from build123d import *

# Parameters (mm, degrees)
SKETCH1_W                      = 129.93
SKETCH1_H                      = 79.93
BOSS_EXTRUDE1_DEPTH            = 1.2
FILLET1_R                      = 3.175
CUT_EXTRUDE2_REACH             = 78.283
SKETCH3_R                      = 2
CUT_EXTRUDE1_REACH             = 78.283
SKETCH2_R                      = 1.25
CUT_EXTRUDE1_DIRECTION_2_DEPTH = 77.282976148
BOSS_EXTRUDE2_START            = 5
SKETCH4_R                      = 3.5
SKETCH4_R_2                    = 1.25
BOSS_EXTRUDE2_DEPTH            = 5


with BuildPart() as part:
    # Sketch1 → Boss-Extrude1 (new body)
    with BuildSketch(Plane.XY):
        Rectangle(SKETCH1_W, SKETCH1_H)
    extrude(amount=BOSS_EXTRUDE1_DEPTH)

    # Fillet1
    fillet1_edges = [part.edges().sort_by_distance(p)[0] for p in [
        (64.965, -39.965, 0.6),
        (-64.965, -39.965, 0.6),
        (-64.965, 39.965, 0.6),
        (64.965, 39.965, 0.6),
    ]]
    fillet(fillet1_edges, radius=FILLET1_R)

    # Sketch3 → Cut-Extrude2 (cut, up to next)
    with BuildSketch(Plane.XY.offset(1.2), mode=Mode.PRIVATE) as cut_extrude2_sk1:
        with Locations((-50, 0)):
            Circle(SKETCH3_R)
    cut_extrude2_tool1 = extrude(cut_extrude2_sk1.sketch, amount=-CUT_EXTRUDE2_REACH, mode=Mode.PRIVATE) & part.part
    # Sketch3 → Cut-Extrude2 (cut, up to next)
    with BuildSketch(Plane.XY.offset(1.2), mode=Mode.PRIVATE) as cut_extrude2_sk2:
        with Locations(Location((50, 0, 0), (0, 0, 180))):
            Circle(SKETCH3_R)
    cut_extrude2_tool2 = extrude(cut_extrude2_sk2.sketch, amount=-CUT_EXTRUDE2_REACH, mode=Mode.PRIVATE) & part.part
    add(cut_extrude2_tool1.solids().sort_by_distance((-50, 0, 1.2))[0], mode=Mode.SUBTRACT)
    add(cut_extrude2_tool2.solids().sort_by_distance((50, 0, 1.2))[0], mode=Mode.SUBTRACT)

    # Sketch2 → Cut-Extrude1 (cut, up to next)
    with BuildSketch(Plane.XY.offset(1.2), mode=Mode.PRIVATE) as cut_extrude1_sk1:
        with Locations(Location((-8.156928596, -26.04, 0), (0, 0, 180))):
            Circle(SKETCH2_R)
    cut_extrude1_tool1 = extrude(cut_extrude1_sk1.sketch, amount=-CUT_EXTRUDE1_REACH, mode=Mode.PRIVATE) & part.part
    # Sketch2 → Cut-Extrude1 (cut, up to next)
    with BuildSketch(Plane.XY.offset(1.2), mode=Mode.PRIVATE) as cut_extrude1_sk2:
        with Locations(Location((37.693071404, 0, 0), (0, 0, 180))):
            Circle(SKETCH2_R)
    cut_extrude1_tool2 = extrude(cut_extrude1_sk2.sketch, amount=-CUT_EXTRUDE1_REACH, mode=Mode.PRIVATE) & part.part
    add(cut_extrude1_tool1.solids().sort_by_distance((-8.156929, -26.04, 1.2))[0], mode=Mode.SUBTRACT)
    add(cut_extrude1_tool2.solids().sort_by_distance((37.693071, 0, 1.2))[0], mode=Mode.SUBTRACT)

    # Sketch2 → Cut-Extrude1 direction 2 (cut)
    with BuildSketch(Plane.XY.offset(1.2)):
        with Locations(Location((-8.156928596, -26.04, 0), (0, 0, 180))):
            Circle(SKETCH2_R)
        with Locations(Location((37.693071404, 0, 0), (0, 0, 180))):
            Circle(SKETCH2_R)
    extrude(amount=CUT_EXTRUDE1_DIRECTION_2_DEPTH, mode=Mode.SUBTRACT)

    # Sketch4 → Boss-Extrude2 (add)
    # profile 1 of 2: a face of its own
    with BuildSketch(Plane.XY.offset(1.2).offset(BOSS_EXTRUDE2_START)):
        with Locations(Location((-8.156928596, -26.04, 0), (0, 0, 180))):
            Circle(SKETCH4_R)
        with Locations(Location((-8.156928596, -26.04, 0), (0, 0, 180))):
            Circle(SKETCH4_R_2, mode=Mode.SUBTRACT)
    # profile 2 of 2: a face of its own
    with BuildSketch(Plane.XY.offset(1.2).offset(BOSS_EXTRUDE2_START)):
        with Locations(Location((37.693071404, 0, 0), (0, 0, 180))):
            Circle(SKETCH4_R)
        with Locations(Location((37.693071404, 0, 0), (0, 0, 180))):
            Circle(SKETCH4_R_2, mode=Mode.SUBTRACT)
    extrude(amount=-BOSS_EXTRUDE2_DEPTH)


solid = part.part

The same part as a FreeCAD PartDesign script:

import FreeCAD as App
import Part
import Sketcher
from FreeCAD import Vector


def edges_at(feature, points):
    """Names of the edges that pass closest to the given points."""
    edges = feature.Shape.Edges
    near = lambda p: min(range(len(edges)), key=lambda i: edges[i].distToShape(Part.Vertex(*p))[0])
    return sorted({f"Edge{near(p) + 1}" for p in points})

doc = App.newDocument("Part")
body = doc.addObject("PartDesign::Body", "Body")

# Sketch on XY plane
sketch1 = body.newObject("Sketcher::SketchObject", "Sketch")
sketch1.AttachmentSupport = (doc.getObject("XY_Plane"), [""])
sketch1.MapMode = "FlatFace"
sketch1.addGeometry([
    Part.LineSegment(Vector(-65, 40, 0), Vector(-65, -40, 0)),
    Part.LineSegment(Vector(-65, -40, 0), Vector(65, -40, 0)),
    Part.LineSegment(Vector(65, -40, 0), Vector(65, 40, 0)),
    Part.LineSegment(Vector(65, 40, 0), Vector(-65, 40, 0)),
], False)
sketch1.addConstraint([
    Sketcher.Constraint("Coincident", 0, 2, 1, 1),
    Sketcher.Constraint("Coincident", 1, 2, 2, 1),
    Sketcher.Constraint("Coincident", 2, 2, 3, 1),
    Sketcher.Constraint("Coincident", 3, 2, 0, 1),
    Sketcher.Constraint("Vertical", 0),
    Sketcher.Constraint("Horizontal", 1),
    Sketcher.Constraint("Vertical", 2),
    Sketcher.Constraint("Horizontal", 3),
    Sketcher.Constraint("Symmetric", 0, 2, 2, 2, -1, 1),
    Sketcher.Constraint("DistanceX", 1, 1, 1, 2, 129.93),
    Sketcher.Constraint("DistanceY", 0, 2, 0, 1, 79.93),
])
pad1 = body.newObject("PartDesign::Pad", "Pad")
pad1.Profile = sketch1
pad1.Length = 1.2
doc.recompute()

fillet = body.newObject("PartDesign::Fillet", "Fillet")
fillet.Base = (pad1, edges_at(pad1, [
    (64.965, -39.965, 0.6),
    (-64.965, -39.965, 0.6),
    (-64.965, 39.965, 0.6),
    (64.965, 39.965, 0.6),
]))
fillet.Radius = 3.175

# Sketch on XY plane
sketch2 = body.newObject("Sketcher::SketchObject", "Sketch001")
sketch2.AttachmentSupport = (doc.getObject("XY_Plane"), [""])
sketch2.MapMode = "FlatFace"
sketch2.AttachmentOffset = App.Placement(Vector(0, 0, 1.2), App.Rotation())
sketch2.addGeometry(Part.Circle(Vector(-50, 0, 0), Vector(0, 0, 1), 2), False)
sketch2.addConstraint([
    Sketcher.Constraint("PointOnObject", 0, 3, -1),
    Sketcher.Constraint("Diameter", 0, 4.0),
    Sketcher.Constraint("DistanceX", 0, 3, -1, 1, 50.0),
])
pocket1 = body.newObject("PartDesign::Pocket", "Pocket")
pocket1.Profile = sketch2
pocket1.Type = "UpToFirst"

# Sketch on XY plane
sketch3 = body.newObject("Sketcher::SketchObject", "Sketch002")
sketch3.AttachmentSupport = (doc.getObject("XY_Plane"), [""])
sketch3.MapMode = "FlatFace"
sketch3.AttachmentOffset = App.Placement(Vector(0, 0, 1.2), App.Rotation())
sketch3.addGeometry(Part.Circle(Vector(50, 0, 0), Vector(0, 0, 1), 2), False)
sketch3.addConstraint([
    Sketcher.Constraint("PointOnObject", 0, 3, -1),
    Sketcher.Constraint("Diameter", 0, 4.0),
    Sketcher.Constraint("DistanceX", -1, 1, 0, 3, 50.0),
])
pocket2 = body.newObject("PartDesign::Pocket", "Pocket001")
pocket2.Profile = sketch3
pocket2.Type = "UpToFirst"

# Sketch on XY plane
sketch4 = body.newObject("Sketcher::SketchObject", "Sketch003")
sketch4.AttachmentSupport = (doc.getObject("XY_Plane"), [""])
sketch4.MapMode = "FlatFace"
sketch4.AttachmentOffset = App.Placement(Vector(0, 0, 1.2), App.Rotation())
sketch4.addGeometry(Part.Circle(Vector(-8.2, -26, 0), Vector(0, 0, 1), 1.2), False)
sketch4.addConstraint([
    Sketcher.Constraint("Diameter", 0, 2.5),
    Sketcher.Constraint("DistanceY", 0, 3, -1, 1, 26.04),
    Sketcher.Constraint("DistanceX", 0, 3, -1, 1, 8.156929),
])
pocket3 = body.newObject("PartDesign::Pocket", "Pocket002")
pocket3.Profile = sketch4
pocket3.Type = "UpToFirst"

# Sketch on XY plane
sketch5 = body.newObject("Sketcher::SketchObject", "Sketch004")
sketch5.AttachmentSupport = (doc.getObject("XY_Plane"), [""])
sketch5.MapMode = "FlatFace"
sketch5.AttachmentOffset = App.Placement(Vector(0, 0, 1.2), App.Rotation())
sketch5.addGeometry(Part.Circle(Vector(37.7, 0, 0), Vector(0, 0, 1), 1.2), False)
sketch5.addConstraint([
    Sketcher.Constraint("PointOnObject", 0, 3, -1),
    Sketcher.Constraint("Diameter", 0, 2.5),
    Sketcher.Constraint("DistanceX", -1, 1, 0, 3, 37.693071),
])
pocket4 = body.newObject("PartDesign::Pocket", "Pocket003")
pocket4.Profile = sketch5
pocket4.Type = "UpToFirst"

# Sketch on XY plane
sketch6 = body.newObject("Sketcher::SketchObject", "Sketch005")
sketch6.AttachmentSupport = (doc.getObject("XY_Plane"), [""])
sketch6.MapMode = "FlatFace"
sketch6.AttachmentOffset = App.Placement(Vector(0, 0, 1.2), App.Rotation())
sketch6.addGeometry([
    Part.Circle(Vector(-8.2, -26, 0), Vector(0, 0, 1), 1.2),
    Part.Circle(Vector(37.7, 0, 0), Vector(0, 0, 1), 1.2),
], False)
sketch6.addConstraint([
    Sketcher.Constraint("Equal", 0, 1),
    Sketcher.Constraint("PointOnObject", 1, 3, -1),
    Sketcher.Constraint("Diameter", 0, 2.5),
    Sketcher.Constraint("DistanceY", 0, 3, -1, 1, 26.04),
    Sketcher.Constraint("DistanceX", 0, 3, 1, 3, 45.85),
    Sketcher.Constraint("DistanceX", 0, 3, -1, 1, 8.156929),
])
pocket5 = body.newObject("PartDesign::Pocket", "Pocket004")
pocket5.Profile = sketch6
pocket5.Length = 77.282976
pocket5.Reversed = True

# Sketch on XY plane
sketch7 = body.newObject("Sketcher::SketchObject", "Sketch006")
sketch7.AttachmentSupport = (doc.getObject("XY_Plane"), [""])
sketch7.MapMode = "FlatFace"
sketch7.AttachmentOffset = App.Placement(Vector(0, 0, 6.2), App.Rotation())
sketch7.addGeometry([
    Part.Circle(Vector(-8.2, -26, 0), Vector(0, 0, 1), 3.5),
    Part.Circle(Vector(-8.2, -26, 0), Vector(0, 0, 1), 1.2),
    Part.Circle(Vector(37.7, 0, 0), Vector(0, 0, 1), 3.5),
    Part.Circle(Vector(37.7, 0, 0), Vector(0, 0, 1), 1.2),
], False)
sketch7.addConstraint([
    Sketcher.Constraint("Coincident", 1, 3, 0, 3),
    Sketcher.Constraint("Coincident", 3, 3, 2, 3),
    Sketcher.Constraint("Equal", 0, 2),
    Sketcher.Constraint("Equal", 1, 3),
    Sketcher.Constraint("PointOnObject", 2, 3, -1),
    Sketcher.Constraint("Diameter", 0, 7.0),
    Sketcher.Constraint("Diameter", 1, 2.5),
    Sketcher.Constraint("DistanceY", 0, 3, -1, 1, 26.04),
    Sketcher.Constraint("DistanceX", 0, 3, 2, 3, 45.85),
    Sketcher.Constraint("DistanceX", 0, 3, -1, 1, 8.156929),
])
pad2 = body.newObject("PartDesign::Pad", "Pad001")
pad2.Profile = sketch7
pad2.Length = 5
pad2.Reversed = True

doc.recompute()
